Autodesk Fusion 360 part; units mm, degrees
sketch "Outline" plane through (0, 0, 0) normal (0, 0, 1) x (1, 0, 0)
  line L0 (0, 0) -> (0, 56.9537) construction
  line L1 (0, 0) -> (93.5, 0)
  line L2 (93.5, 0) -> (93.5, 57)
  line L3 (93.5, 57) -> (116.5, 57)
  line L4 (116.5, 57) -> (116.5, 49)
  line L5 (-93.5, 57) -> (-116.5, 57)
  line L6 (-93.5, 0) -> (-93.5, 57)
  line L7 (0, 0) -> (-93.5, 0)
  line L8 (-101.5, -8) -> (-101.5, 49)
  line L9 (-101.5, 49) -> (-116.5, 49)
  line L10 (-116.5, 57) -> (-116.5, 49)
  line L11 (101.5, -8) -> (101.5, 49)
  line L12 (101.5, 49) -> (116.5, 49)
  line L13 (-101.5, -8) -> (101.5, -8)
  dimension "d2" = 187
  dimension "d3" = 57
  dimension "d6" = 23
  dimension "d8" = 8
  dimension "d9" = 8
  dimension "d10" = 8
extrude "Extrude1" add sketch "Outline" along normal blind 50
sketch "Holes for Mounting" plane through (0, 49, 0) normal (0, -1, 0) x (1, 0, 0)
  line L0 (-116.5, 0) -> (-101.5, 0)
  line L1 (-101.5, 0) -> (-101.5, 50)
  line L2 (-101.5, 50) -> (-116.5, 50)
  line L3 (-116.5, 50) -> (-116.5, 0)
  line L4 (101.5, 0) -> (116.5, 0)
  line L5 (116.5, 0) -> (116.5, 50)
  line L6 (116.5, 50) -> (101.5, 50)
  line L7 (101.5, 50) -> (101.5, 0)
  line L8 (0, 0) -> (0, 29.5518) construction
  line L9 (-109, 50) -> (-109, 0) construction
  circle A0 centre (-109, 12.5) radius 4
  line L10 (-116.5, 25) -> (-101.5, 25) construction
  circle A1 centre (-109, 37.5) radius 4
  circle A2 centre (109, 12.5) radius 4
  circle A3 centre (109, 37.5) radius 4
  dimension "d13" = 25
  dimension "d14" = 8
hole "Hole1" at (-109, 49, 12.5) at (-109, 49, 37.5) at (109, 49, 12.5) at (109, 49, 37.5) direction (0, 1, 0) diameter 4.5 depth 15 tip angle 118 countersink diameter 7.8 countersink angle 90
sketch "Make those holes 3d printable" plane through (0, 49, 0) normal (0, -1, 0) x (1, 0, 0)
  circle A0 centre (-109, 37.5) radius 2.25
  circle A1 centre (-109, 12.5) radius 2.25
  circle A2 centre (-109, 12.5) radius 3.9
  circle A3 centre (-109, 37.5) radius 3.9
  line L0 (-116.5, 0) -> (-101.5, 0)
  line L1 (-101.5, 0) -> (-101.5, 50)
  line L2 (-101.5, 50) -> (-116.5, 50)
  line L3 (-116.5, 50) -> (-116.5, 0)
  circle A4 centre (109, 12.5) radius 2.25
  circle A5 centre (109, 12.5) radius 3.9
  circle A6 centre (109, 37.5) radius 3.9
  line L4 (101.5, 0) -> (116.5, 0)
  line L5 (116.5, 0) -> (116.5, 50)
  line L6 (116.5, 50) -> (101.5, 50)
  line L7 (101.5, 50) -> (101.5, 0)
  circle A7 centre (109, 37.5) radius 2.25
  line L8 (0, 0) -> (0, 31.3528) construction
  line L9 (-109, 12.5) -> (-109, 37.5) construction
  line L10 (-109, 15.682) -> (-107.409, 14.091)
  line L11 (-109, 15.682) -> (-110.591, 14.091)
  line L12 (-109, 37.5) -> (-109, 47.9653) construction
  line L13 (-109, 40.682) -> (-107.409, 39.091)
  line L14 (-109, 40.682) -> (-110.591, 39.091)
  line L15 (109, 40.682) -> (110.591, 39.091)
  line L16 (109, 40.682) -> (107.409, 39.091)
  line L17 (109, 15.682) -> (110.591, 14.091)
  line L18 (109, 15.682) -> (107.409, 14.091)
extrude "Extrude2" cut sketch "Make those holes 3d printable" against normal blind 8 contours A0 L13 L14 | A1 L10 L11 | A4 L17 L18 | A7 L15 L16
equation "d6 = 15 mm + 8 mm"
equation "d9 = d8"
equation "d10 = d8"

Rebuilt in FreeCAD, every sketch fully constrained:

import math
import FreeCAD as App
import Part
import Sketcher
from FreeCAD import Vector
Q = App.Units.Quantity

doc = App.newDocument("Part")
params = doc.addObject("Spreadsheet::Sheet", "Params")
for row, (alias, value) in enumerate([
    ("sketch1_width", "187 mm"),
    ("sketch1_width2", "23 mm"),
    ("sketch1_height", "57 mm"),
    ("sketch1_height2", "8 mm"),
    ("pad1_length", "50 mm"),
    ("sketch2_diameter", "4.5 mm"),
    ("hole_diameter", "4.5 mm"),
    ("hole_depth", "15 mm"),
    ("hole_csink_diameter", "7.8 mm"),
    ("sketch3_radius", "2.25 mm"),
    ("pocket1_length", "8 mm"),
], start=1):
    params.set(f"A{row}", alias)
    params.set(f"B{row}", "=" + value)
    params.setAlias(f"B{row}", alias)

body = doc.addObject("PartDesign::Body", "Body")

sketch1 = body.newObject("Sketcher::SketchObject", "Sketch")
sketch1.AttachmentSupport = (doc.getObject("XY_Plane"), [""])
sketch1.MapMode = "FlatFace"
sketch1.addGeometry(Part.LineSegment(Vector(93.5, 0, 0), Vector(-93.5, 0, 0)), False)
sketch1.addGeometry(Part.LineSegment(Vector(-93.5, 0, 0), Vector(-93.5, 57, 0)), False)
sketch1.addGeometry(Part.LineSegment(Vector(-93.5, 57, 0), Vector(-116.5, 57, 0)), False)
sketch1.addGeometry(Part.LineSegment(Vector(-116.5, 57, 0), Vector(-116.5, 49, 0)), False)
sketch1.addGeometry(Part.LineSegment(Vector(-116.5, 49, 0), Vector(-101.5, 49, 0)), False)
sketch1.addGeometry(Part.LineSegment(Vector(-101.5, 49, 0), Vector(-101.5, -8, 0)), False)
sketch1.addGeometry(Part.LineSegment(Vector(-101.5, -8, 0), Vector(101.5, -8, 0)), False)
sketch1.addGeometry(Part.LineSegment(Vector(101.5, -8, 0), Vector(101.5, 49, 0)), False)
sketch1.addGeometry(Part.LineSegment(Vector(101.5, 49, 0), Vector(116.5, 49, 0)), False)
sketch1.addGeometry(Part.LineSegment(Vector(116.5, 49, 0), Vector(116.5, 57, 0)), False)
sketch1.addGeometry(Part.LineSegment(Vector(116.5, 57, 0), Vector(93.5, 57, 0)), False)
sketch1.addGeometry(Part.LineSegment(Vector(93.5, 57, 0), Vector(93.5, 0, 0)), False)
sketch1.addConstraint(Sketcher.Constraint("Coincident", 0, 2, 1, 1))
sketch1.addConstraint(Sketcher.Constraint("Coincident", 1, 2, 2, 1))
sketch1.addConstraint(Sketcher.Constraint("Coincident", 2, 2, 3, 1))
sketch1.addConstraint(Sketcher.Constraint("Coincident", 3, 2, 4, 1))
sketch1.addConstraint(Sketcher.Constraint("Coincident", 4, 2, 5, 1))
sketch1.addConstraint(Sketcher.Constraint("Coincident", 5, 2, 6, 1))
sketch1.addConstraint(Sketcher.Constraint("Coincident", 6, 2, 7, 1))
sketch1.addConstraint(Sketcher.Constraint("Coincident", 7, 2, 8, 1))
sketch1.addConstraint(Sketcher.Constraint("Coincident", 8, 2, 9, 1))
sketch1.addConstraint(Sketcher.Constraint("Coincident", 9, 2, 10, 1))
sketch1.addConstraint(Sketcher.Constraint("Coincident", 10, 2, 11, 1))
sketch1.addConstraint(Sketcher.Constraint("Coincident", 11, 2, 0, 1))
sketch1.addConstraint(Sketcher.Constraint("Horizontal", 0))
sketch1.addConstraint(Sketcher.Constraint("Vertical", 1))
sketch1.addConstraint(Sketcher.Constraint("Horizontal", 2))
sketch1.addConstraint(Sketcher.Constraint("Vertical", 3))
sketch1.addConstraint(Sketcher.Constraint("Horizontal", 4))
sketch1.addConstraint(Sketcher.Constraint("Vertical", 5))
sketch1.addConstraint(Sketcher.Constraint("Horizontal", 6))
sketch1.addConstraint(Sketcher.Constraint("Vertical", 7))
sketch1.addConstraint(Sketcher.Constraint("Horizontal", 8))
sketch1.addConstraint(Sketcher.Constraint("Vertical", 9))
sketch1.addConstraint(Sketcher.Constraint("Horizontal", 10))
sketch1.addConstraint(Sketcher.Constraint("Vertical", 11))
sketch1.addConstraint(Sketcher.Constraint("Symmetric", 0, 2, 11, 2, -1, 1))
sketch1.addConstraint(Sketcher.Constraint("Symmetric", 4, 2, 7, 2, -2))
sketch1.addConstraint(Sketcher.Constraint("Symmetric", 2, 2, 9, 2, -2))
sketch1.addConstraint(Sketcher.Constraint("Equal", 1, 5))
sketch1.addConstraint(Sketcher.Constraint("DistanceX", 0, 2, 0, 1, Q("187 mm")))
sketch1.addConstraint(Sketcher.Constraint("DistanceX", 2, 2, 2, 1, Q("23 mm")))
sketch1.addConstraint(Sketcher.Constraint("DistanceY", 1, 1, 1, 2, Q("57 mm")))
sketch1.addConstraint(Sketcher.Constraint("DistanceY", 3, 2, 3, 1, Q("8 mm")))
sketch1.addConstraint(Sketcher.Constraint("DistanceX", 4, 2, 1, 2, Q("8 mm")))
sketch1.setExpression("Constraints[28]", "Params.sketch1_width")
sketch1.setExpression("Constraints[29]", "Params.sketch1_width2")
sketch1.setExpression("Constraints[30]", "Params.sketch1_height")
sketch1.setExpression("Constraints[31]", "Params.sketch1_height2")
pad1 = body.newObject("PartDesign::Pad", "Pad")
pad1.Profile = sketch1
pad1.setExpression("Length", "Params.pad1_length")

sketch2 = body.newObject("Sketcher::SketchObject", "Sketch001")
sketch2.AttachmentSupport = (doc.getObject("XZ_Plane"), [""])
sketch2.MapMode = "FlatFace"
sketch2.AttachmentOffset = App.Placement(Vector(0, 0, -49), App.Rotation())
sketch2.addGeometry(Part.Circle(Vector(-109, 12.5, 0), Vector(0, 0, 1), 2.25), False)
sketch2.addGeometry(Part.Circle(Vector(-109, 37.5, 0), Vector(0, 0, 1), 2.25), False)
sketch2.addGeometry(Part.Circle(Vector(109, 12.5, 0), Vector(0, 0, 1), 2.25), False)
sketch2.addGeometry(Part.Circle(Vector(109, 37.5, 0), Vector(0, 0, 1), 2.25), False)
sketch2.addConstraint(Sketcher.Constraint("Equal", 0, 1))
sketch2.addConstraint(Sketcher.Constraint("Equal", 1, 2))
sketch2.addConstraint(Sketcher.Constraint("Equal", 2, 3))
sketch2.addConstraint(Sketcher.Constraint("Symmetric", 0, 3, 2, 3, -2))
sketch2.addConstraint(Sketcher.Constraint("Symmetric", 1, 3, 3, 3, -2))
sketch2.addConstraint(Sketcher.Constraint("Vertical", 0, 3, 1, 3))
sketch2.addConstraint(Sketcher.Constraint("Diameter", 0, Q("4.5 mm")))
sketch2.addConstraint(Sketcher.Constraint("DistanceX", 0, 3, -1, 1, Q("109 mm")))
sketch2.addConstraint(Sketcher.Constraint("DistanceY", 0, 3, 1, 3, Q("25 mm")))
sketch2.addConstraint(Sketcher.Constraint("DistanceY", -1, 1, 0, 3, Q("12.5 mm")))
sketch2.setExpression("Constraints[6]", "Params.sketch2_diameter")
doc.recompute()
hole = body.newObject("PartDesign::Hole", "Hole")
hole.Profile = sketch2
hole.ThreadType = "None"
hole.setExpression("Diameter", "Params.hole_diameter")
hole.DepthType = "Dimension"
hole.setExpression("Depth", "Params.hole_depth")
hole.DrillPoint = "Angled"
hole.DrillPointAngle = 118
hole.HoleCutType = "Countersink"
hole.setExpression("HoleCutDiameter", "Params.hole_csink_diameter")
hole.HoleCutCountersinkAngle = 90

sketch3 = body.newObject("Sketcher::SketchObject", "Sketch002")
sketch3.AttachmentSupport = (doc.getObject("XZ_Plane"), [""])
sketch3.MapMode = "FlatFace"
sketch3.AttachmentOffset = App.Placement(Vector(0, 0, -49), App.Rotation())
sketch3.addGeometry(Part.ArcOfCircle(Part.Circle(Vector(-109, 37.5, 0), Vector(0, 0, 1), 2.25), math.radians(45), math.radians(135)), False)
sketch3.addGeometry(Part.LineSegment(Vector(-107.409, 39.091, 0), Vector(-109, 40.682, 0)), False)
sketch3.addGeometry(Part.LineSegment(Vector(-109, 40.682, 0), Vector(-110.591, 39.091, 0)), False)
sketch3.addGeometry(Part.ArcOfCircle(Part.Circle(Vector(-109, 12.5, 0), Vector(0, 0, 1), 2.25), math.radians(45), math.radians(135)), False)
sketch3.addGeometry(Part.LineSegment(Vector(-107.409, 14.091, 0), Vector(-109, 15.682, 0)), False)
sketch3.addGeometry(Part.LineSegment(Vector(-109, 15.682, 0), Vector(-110.591, 14.091, 0)), False)
sketch3.addGeometry(Part.ArcOfCircle(Part.Circle(Vector(109, 12.5, 0), Vector(0, 0, 1), 2.25), math.radians(45), math.radians(135)), False)
sketch3.addGeometry(Part.LineSegment(Vector(110.591, 14.091, 0), Vector(109, 15.682, 0)), False)
sketch3.addGeometry(Part.LineSegment(Vector(109, 15.682, 0), Vector(107.409, 14.091, 0)), False)
sketch3.addGeometry(Part.ArcOfCircle(Part.Circle(Vector(109, 37.5, 0), Vector(0, 0, 1), 2.25), math.radians(45), math.radians(135)), False)
sketch3.addGeometry(Part.LineSegment(Vector(110.591, 39.091, 0), Vector(109, 40.682, 0)), False)
sketch3.addGeometry(Part.LineSegment(Vector(109, 40.682, 0), Vector(107.409, 39.091, 0)), False)
sketch3.addConstraint(Sketcher.Constraint("Tangent", 0, 1, 1, 1))
sketch3.addConstraint(Sketcher.Constraint("Coincident", 1, 2, 2, 1))
sketch3.addConstraint(Sketcher.Constraint("Tangent", 2, 2, 0, 2))
sketch3.addConstraint(Sketcher.Constraint("Tangent", 3, 1, 4, 1))
sketch3.addConstraint(Sketcher.Constraint("Coincident", 4, 2, 5, 1))
sketch3.addConstraint(Sketcher.Constraint("Tangent", 5, 2, 3, 2))
sketch3.addConstraint(Sketcher.Constraint("Tangent", 6, 1, 7, 1))
sketch3.addConstraint(Sketcher.Constraint("Coincident", 7, 2, 8, 1))
sketch3.addConstraint(Sketcher.Constraint("Tangent", 8, 2, 6, 2))
sketch3.addConstraint(Sketcher.Constraint("Tangent", 9, 1, 10, 1))
sketch3.addConstraint(Sketcher.Constraint("Coincident", 10, 2, 11, 1))
sketch3.addConstraint(Sketcher.Constraint("Tangent", 11, 2, 9, 2))
sketch3.addConstraint(Sketcher.Constraint("Equal", 0, 3))
sketch3.addConstraint(Sketcher.Constraint("Equal", 3, 6))
sketch3.addConstraint(Sketcher.Constraint("Equal", 6, 9))
sketch3.addConstraint(Sketcher.Constraint("Symmetric", 3, 3, 6, 3, -2))
sketch3.addConstraint(Sketcher.Constraint("Symmetric", 0, 3, 9, 3, -2))
sketch3.addConstraint(Sketcher.Constraint("Symmetric", 4, 2, 7, 2, -2))
sketch3.addConstraint(Sketcher.Constraint("Symmetric", 1, 2, 10, 2, -2))
sketch3.addConstraint(Sketcher.Constraint("Perpendicular", 1, 2))
sketch3.addConstraint(Sketcher.Constraint("Perpendicular", 2, 4))
sketch3.addConstraint(Sketcher.Constraint("Perpendicular", 4, 5))
sketch3.addConstraint(Sketcher.Constraint("Perpendicular", 5, 7))
sketch3.addConstraint(Sketcher.Constraint("Vertical", 0, 3, 3, 3))
sketch3.addConstraint(Sketcher.Constraint("Radius", 0, Q("2.25 mm")))
sketch3.addConstraint(Sketcher.Constraint("DistanceX", 0, 3, -1, 1, Q("109 mm")))
sketch3.addConstraint(Sketcher.Constraint("DistanceY", 3, 3, 0, 3, Q("25 mm")))
sketch3.addConstraint(Sketcher.Constraint("DistanceY", -1, 1, 0, 3, Q("37.5 mm")))
sketch3.setExpression("Constraints[24]", "Params.sketch3_radius")
pocket1 = body.newObject("PartDesign::Pocket", "Pocket")
pocket1.Profile = sketch3
pocket1.setExpression("Length", "Params.pocket1_length")

doc.recompute()
